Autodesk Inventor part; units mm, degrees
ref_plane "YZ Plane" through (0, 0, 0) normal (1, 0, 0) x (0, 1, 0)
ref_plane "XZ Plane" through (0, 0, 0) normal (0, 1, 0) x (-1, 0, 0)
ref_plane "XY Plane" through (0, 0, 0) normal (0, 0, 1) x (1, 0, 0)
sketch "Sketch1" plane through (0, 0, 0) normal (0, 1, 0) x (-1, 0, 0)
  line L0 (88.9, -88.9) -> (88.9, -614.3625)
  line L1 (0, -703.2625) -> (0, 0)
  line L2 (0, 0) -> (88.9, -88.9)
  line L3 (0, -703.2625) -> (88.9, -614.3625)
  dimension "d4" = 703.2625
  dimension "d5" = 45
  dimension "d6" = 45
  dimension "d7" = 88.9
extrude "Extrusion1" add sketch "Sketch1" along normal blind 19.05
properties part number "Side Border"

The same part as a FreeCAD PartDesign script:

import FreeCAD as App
import Part
import Sketcher
Q = App.Units.Quantity

doc = App.newDocument("Part")
body = doc.addObject("PartDesign::Body", "Body")

sketch1 = doc.addObject("Sketcher::SketchObject", "Sketch")
body.addObject(sketch1)
sketch1.AttachmentSupport = (doc.XZ_Plane, [""])
sketch1.MapMode = "FlatFace"
sketch1.addGeometry([
    Part.LineSegment(App.Vector(-89, -614, 0), App.Vector(-89, -89, 0)),
    Part.LineSegment(App.Vector(-89, -89, 0), App.Vector(0, 0, 0)),
    Part.LineSegment(App.Vector(0, 0, 0), App.Vector(0, -703, 0)),
    Part.LineSegment(App.Vector(0, -703, 0), App.Vector(-89, -614, 0)),
], False)
sketch1.addConstraint([
    Sketcher.Constraint("Coincident", 0, 2, 1, 1),
    Sketcher.Constraint("Coincident", 1, 2, 2, 1),
    Sketcher.Constraint("Coincident", 2, 2, 3, 1),
    Sketcher.Constraint("Coincident", 3, 2, 0, 1),
    Sketcher.Constraint("Vertical", 0),
    Sketcher.Constraint("Vertical", 2),
    Sketcher.Constraint("Coincident", 1, 2, -1, 1),
    Sketcher.Constraint("Perpendicular", 1, 3),
    Sketcher.Constraint("Equal", 1, 3),
    Sketcher.Constraint("DistanceX", 0, 2, -1, 1, Q("3.5 in")),
    Sketcher.Constraint("DistanceY", 2, 2, 2, 1, Q("27.6875 in")),
])
pad1 = doc.addObject("PartDesign::Pad", "Pad")
body.addObject(pad1)
pad1.Profile = sketch1
pad1.Length = Q("0.75 in")
pad1.Reversed = True

doc.recompute()
